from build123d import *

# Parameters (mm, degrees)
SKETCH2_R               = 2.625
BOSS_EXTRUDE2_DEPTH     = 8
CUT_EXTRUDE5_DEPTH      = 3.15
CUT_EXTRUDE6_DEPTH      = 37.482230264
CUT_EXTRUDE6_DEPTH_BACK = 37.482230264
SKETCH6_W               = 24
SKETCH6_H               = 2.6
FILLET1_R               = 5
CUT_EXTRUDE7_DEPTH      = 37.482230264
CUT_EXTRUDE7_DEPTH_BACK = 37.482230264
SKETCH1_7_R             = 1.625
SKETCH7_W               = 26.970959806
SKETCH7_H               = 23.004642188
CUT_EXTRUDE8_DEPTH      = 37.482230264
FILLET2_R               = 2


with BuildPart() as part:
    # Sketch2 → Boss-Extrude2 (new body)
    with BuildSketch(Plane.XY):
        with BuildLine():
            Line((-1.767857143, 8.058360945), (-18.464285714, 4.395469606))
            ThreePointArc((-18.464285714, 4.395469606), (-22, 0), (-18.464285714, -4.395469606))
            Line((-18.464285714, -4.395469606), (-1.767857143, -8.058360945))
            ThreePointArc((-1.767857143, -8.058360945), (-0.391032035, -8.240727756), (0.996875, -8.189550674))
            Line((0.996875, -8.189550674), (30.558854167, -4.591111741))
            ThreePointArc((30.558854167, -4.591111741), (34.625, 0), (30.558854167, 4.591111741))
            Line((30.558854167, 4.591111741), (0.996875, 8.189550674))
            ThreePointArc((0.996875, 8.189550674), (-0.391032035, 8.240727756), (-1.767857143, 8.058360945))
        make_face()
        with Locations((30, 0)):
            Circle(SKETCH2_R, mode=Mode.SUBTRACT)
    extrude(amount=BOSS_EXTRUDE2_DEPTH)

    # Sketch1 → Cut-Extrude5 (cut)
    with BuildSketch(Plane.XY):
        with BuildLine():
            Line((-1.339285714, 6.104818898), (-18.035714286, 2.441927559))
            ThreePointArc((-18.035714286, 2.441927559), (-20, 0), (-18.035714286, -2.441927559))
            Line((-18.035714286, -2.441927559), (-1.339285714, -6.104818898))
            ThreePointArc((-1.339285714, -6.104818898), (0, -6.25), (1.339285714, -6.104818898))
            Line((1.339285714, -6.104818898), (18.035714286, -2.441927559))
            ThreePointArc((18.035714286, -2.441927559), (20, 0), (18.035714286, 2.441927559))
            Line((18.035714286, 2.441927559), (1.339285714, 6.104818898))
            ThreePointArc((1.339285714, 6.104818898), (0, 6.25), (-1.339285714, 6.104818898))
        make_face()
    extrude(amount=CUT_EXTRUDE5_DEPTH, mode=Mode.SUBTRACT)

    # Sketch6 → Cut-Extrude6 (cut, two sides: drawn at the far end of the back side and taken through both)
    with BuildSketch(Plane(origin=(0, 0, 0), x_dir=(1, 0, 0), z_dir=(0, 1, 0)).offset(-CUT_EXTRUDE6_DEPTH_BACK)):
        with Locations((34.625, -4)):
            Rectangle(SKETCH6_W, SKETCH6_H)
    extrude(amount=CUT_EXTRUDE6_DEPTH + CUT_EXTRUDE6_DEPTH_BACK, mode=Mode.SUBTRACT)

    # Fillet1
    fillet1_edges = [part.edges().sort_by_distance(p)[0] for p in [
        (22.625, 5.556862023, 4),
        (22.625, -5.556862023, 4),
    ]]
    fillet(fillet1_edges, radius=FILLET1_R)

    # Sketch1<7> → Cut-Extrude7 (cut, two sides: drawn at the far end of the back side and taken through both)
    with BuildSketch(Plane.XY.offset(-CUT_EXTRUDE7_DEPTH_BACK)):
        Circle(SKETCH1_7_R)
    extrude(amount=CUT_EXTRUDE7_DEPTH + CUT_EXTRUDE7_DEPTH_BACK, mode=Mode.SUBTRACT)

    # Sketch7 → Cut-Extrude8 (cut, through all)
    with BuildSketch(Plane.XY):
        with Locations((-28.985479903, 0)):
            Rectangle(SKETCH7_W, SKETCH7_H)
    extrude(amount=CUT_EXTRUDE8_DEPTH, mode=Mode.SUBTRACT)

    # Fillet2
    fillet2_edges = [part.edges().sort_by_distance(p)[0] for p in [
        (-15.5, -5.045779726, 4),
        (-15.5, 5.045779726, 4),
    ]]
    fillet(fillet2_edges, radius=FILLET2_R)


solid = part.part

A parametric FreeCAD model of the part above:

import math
import FreeCAD as App
import Part
import Sketcher


def edges_at(feature, points):
    """Names of the edges that pass closest to the given points."""
    edges = feature.Shape.Edges
    near = lambda p: min(range(len(edges)), key=lambda i: edges[i].distToShape(Part.Vertex(*p))[0])
    return sorted({f"Edge{near(p) + 1}" for p in points})

doc = App.newDocument("Part")
params = doc.addObject("Spreadsheet::Sheet", "Params")
for row, (alias, value) in enumerate([
    ("sketch1_radius", "4.5 mm"),
    ("sketch1_diameter", "5.25 mm"),
    ("sketch1_radius2", "8.25 mm"),
    ("pad1_length", "8 mm"),
    ("sketch2_radius", "2.5 mm"),
    ("sketch2_radius2", "6.25 mm"),
    ("pocket1_length", "3.15 mm"),
    ("sketch3_width", "24 mm"),
    ("sketch3_height", "2.6 mm"),
    ("fillet_radius", "5 mm"),
    ("sketch4_diameter", "3.25 mm"),
    ("fillet2_radius", "2 mm"),
], start=1):
    params.set(f"A{row}", alias)
    params.set(f"B{row}", "=" + value)
    params.setAlias(f"B{row}", alias)

body = doc.addObject("PartDesign::Body", "Body")

# Sketch on XY plane
sketch1 = body.newObject("Sketcher::SketchObject", "Sketch")
sketch1.AttachmentSupport = (doc.getObject("XY_Plane"), [""])
sketch1.MapMode = "FlatFace"
sketch1.addGeometry(Part.LineSegment(App.Vector(-1.8, 8.1, 0), App.Vector(-18.5, 4.4, 0)), False)
sketch1.addGeometry(Part.ArcOfCircle(Part.Circle(App.Vector(-17.5, 0, 0), App.Vector(0, 0, 1), 4.5), math.radians(102), math.radians(258)), False)
sketch1.addGeometry(Part.LineSegment(App.Vector(-18.5, -4.4, 0), App.Vector(-1.8, -8.1, 0)), False)
sketch1.addGeometry(Part.ArcOfCircle(Part.Circle(App.Vector(0, 0, 0), App.Vector(0, 0, 1), 8.3), math.radians(-102.37), math.radians(-83.06)), False)
sketch1.addGeometry(Part.LineSegment(App.Vector(1, -8.2, 0), App.Vector(30.6, -4.6, 0)), False)
sketch1.addGeometry(Part.ArcOfCircle(Part.Circle(App.Vector(30, 0, 0), App.Vector(0, 0, 1), 4.6), math.radians(-83), math.radians(83)), False)
sketch1.addGeometry(Part.LineSegment(App.Vector(30.6, 4.6, 0), App.Vector(1, 8.2, 0)), False)
sketch1.addGeometry(Part.ArcOfCircle(Part.Circle(App.Vector(0, 0, 0), App.Vector(0, 0, 1), 8.3), math.radians(83.06), math.radians(102.37)), False)
sketch1.addGeometry(Part.Circle(App.Vector(30, 0, 0), App.Vector(0, 0, 1), 2.6), False)
sketch1.addConstraint(Sketcher.Constraint("Tangent", 0, 2, 1, 1))
sketch1.addConstraint(Sketcher.Constraint("Tangent", 1, 2, 2, 1))
sketch1.addConstraint(Sketcher.Constraint("Tangent", 2, 2, 3, 1))
sketch1.addConstraint(Sketcher.Constraint("Tangent", 3, 2, 4, 1))
sketch1.addConstraint(Sketcher.Constraint("Tangent", 4, 2, 5, 1))
sketch1.addConstraint(Sketcher.Constraint("Tangent", 5, 2, 6, 1))
sketch1.addConstraint(Sketcher.Constraint("Tangent", 6, 2, 7, 1))
sketch1.addConstraint(Sketcher.Constraint("Tangent", 7, 2, 0, 1))
sketch1.addConstraint(Sketcher.Constraint("Coincident", 3, 3, -1, 1))
sketch1.addConstraint(Sketcher.Constraint("Coincident", 7, 3, -1, 1))
sketch1.addConstraint(Sketcher.Constraint("Coincident", 8, 3, 5, 3))
sketch1.addConstraint(Sketcher.Constraint("Equal", 3, 7))
sketch1.addConstraint(Sketcher.Constraint("PointOnObject", 1, 3, -1))
sketch1.addConstraint(Sketcher.Constraint("PointOnObject", 5, 3, -1))
sketch1.addConstraint(Sketcher.Constraint("Radius", 1, 4.5))
sketch1.addConstraint(Sketcher.Constraint("Diameter", 8, 5.25))
sketch1.addConstraint(Sketcher.Constraint("Radius", 3, 8.25))
sketch1.addConstraint(Sketcher.Constraint("DistanceX", -1, 1, 5, 3, 30.0))
sketch1.addConstraint(Sketcher.Constraint("Radius", 5, 4.625))
sketch1.addConstraint(Sketcher.Constraint("DistanceX", 1, 3, -1, 1, 17.5))
sketch1.setExpression("Constraints[14]", "Params.sketch1_radius")
sketch1.setExpression("Constraints[15]", "Params.sketch1_diameter")
sketch1.setExpression("Constraints[16]", "Params.sketch1_radius2")
pad1 = body.newObject("PartDesign::Pad", "Pad")
pad1.Profile = sketch1
pad1.setExpression("Length", "Params.pad1_length")

# Sketch on XY plane
sketch2 = body.newObject("Sketcher::SketchObject", "Sketch001")
sketch2.AttachmentSupport = (doc.getObject("XY_Plane"), [""])
sketch2.MapMode = "FlatFace"
sketch2.addGeometry(Part.LineSegment(App.Vector(-1.3, 6.1, 0), App.Vector(-18, 2.4, 0)), False)
sketch2.addGeometry(Part.ArcOfCircle(Part.Circle(App.Vector(-17.5, 0, 0), App.Vector(0, 0, 1), 2.5), math.radians(102), math.radians(258)), False)
sketch2.addGeometry(Part.LineSegment(App.Vector(-18, -2.4, 0), App.Vector(-1.3, -6.1, 0)), False)
sketch2.addGeometry(Part.ArcOfCircle(Part.Circle(App.Vector(0, 0, 0), App.Vector(0, 0, 1), 6.3), math.radians(-102), math.radians(-78)), False)
sketch2.addGeometry(Part.LineSegment(App.Vector(1.3, -6.1, 0), App.Vector(18, -2.4, 0)), False)
sketch2.addGeometry(Part.ArcOfCircle(Part.Circle(App.Vector(17.5, 0, 0), App.Vector(0, 0, 1), 2.5), math.radians(-78), math.radians(78)), False)
sketch2.addGeometry(Part.LineSegment(App.Vector(18, 2.4, 0), App.Vector(1.3, 6.1, 0)), False)
sketch2.addGeometry(Part.ArcOfCircle(Part.Circle(App.Vector(0, 0, 0), App.Vector(0, 0, 1), 6.3), math.radians(78), math.radians(102)), False)
sketch2.addConstraint(Sketcher.Constraint("Tangent", 0, 2, 1, 1))
sketch2.addConstraint(Sketcher.Constraint("Tangent", 1, 2, 2, 1))
sketch2.addConstraint(Sketcher.Constraint("Tangent", 2, 2, 3, 1))
sketch2.addConstraint(Sketcher.Constraint("Tangent", 3, 2, 4, 1))
sketch2.addConstraint(Sketcher.Constraint("Tangent", 4, 2, 5, 1))
sketch2.addConstraint(Sketcher.Constraint("Tangent", 5, 2, 6, 1))
sketch2.addConstraint(Sketcher.Constraint("Tangent", 6, 2, 7, 1))
sketch2.addConstraint(Sketcher.Constraint("Tangent", 7, 2, 0, 1))
sketch2.addConstraint(Sketcher.Constraint("Coincident", 3, 3, -1, 1))
sketch2.addConstraint(Sketcher.Constraint("Coincident", 7, 3, -1, 1))
sketch2.addConstraint(Sketcher.Constraint("Equal", 1, 5))
sketch2.addConstraint(Sketcher.Constraint("Equal", 3, 7))
sketch2.addConstraint(Sketcher.Constraint("Symmetric", 1, 3, 5, 3, -1, 1))
sketch2.addConstraint(Sketcher.Constraint("PointOnObject", 1, 3, -1))
sketch2.addConstraint(Sketcher.Constraint("Radius", 1, 2.5))
sketch2.addConstraint(Sketcher.Constraint("Radius", 3, 6.25))
sketch2.addConstraint(Sketcher.Constraint("DistanceX", 1, 3, 5, 3, 35.0))
sketch2.setExpression("Constraints[14]", "Params.sketch2_radius")
sketch2.setExpression("Constraints[15]", "Params.sketch2_radius2")
pocket1 = body.newObject("PartDesign::Pocket", "Pocket")
pocket1.Profile = sketch2
pocket1.setExpression("Length", "Params.pocket1_length")
pocket1.Reversed = True

# Sketch on XZ plane
sketch3 = body.newObject("Sketcher::SketchObject", "Sketch002")
sketch3.AttachmentSupport = (doc.getObject("XZ_Plane"), [""])
sketch3.MapMode = "FlatFace"
sketch3.addGeometry(Part.LineSegment(App.Vector(22.6, 2.7, 0), App.Vector(22.6, 5.3, 0)), False)
sketch3.addGeometry(Part.LineSegment(App.Vector(22.6, 5.3, 0), App.Vector(46.6, 5.3, 0)), False)
sketch3.addGeometry(Part.LineSegment(App.Vector(46.6, 5.3, 0), App.Vector(46.6, 2.7, 0)), False)
sketch3.addGeometry(Part.LineSegment(App.Vector(46.6, 2.7, 0), App.Vector(22.6, 2.7, 0)), False)
sketch3.addConstraint(Sketcher.Constraint("Coincident", 0, 2, 1, 1))
sketch3.addConstraint(Sketcher.Constraint("Coincident", 1, 2, 2, 1))
sketch3.addConstraint(Sketcher.Constraint("Coincident", 2, 2, 3, 1))
sketch3.addConstraint(Sketcher.Constraint("Coincident", 3, 2, 0, 1))
sketch3.addConstraint(Sketcher.Constraint("Vertical", 0))
sketch3.addConstraint(Sketcher.Constraint("Horizontal", 1))
sketch3.addConstraint(Sketcher.Constraint("Vertical", 2))
sketch3.addConstraint(Sketcher.Constraint("Horizontal", 3))
sketch3.addConstraint(Sketcher.Constraint("DistanceX", 1, 1, 1, 2, 24.0))
sketch3.addConstraint(Sketcher.Constraint("DistanceY", 0, 1, 0, 2, 2.6))
sketch3.addConstraint(Sketcher.Constraint("DistanceY", -1, 1, 0, 2, 5.3))
sketch3.addConstraint(Sketcher.Constraint("DistanceX", -1, 1, 0, 2, 22.625))
sketch3.setExpression("Constraints[8]", "Params.sketch3_width")
sketch3.setExpression("Constraints[9]", "Params.sketch3_height")
pocket2 = body.newObject("PartDesign::Pocket", "Pocket001")
pocket2.Profile = sketch3
pocket2.Type = "ThroughAll"
pocket2.Midplane = True
doc.recompute()

fillet = body.newObject("PartDesign::Fillet", "Fillet")
fillet.Base = (pocket2, edges_at(pocket2, [(22.625, 5.557, 4), (22.625, -5.557, 4)]))
fillet.setExpression("Radius", "Params.fillet_radius")

# Sketch on XY plane
sketch4 = body.newObject("Sketcher::SketchObject", "Sketch003")
sketch4.AttachmentSupport = (doc.getObject("XY_Plane"), [""])
sketch4.MapMode = "FlatFace"
sketch4.addGeometry(Part.Circle(App.Vector(0, 0, 0), App.Vector(0, 0, 1), 1.6), False)
sketch4.addConstraint(Sketcher.Constraint("Coincident", 0, 3, -1, 1))
sketch4.addConstraint(Sketcher.Constraint("Diameter", 0, 3.25))
sketch4.setExpression("Constraints[1]", "Params.sketch4_diameter")
pocket3 = body.newObject("PartDesign::Pocket", "Pocket002")
pocket3.Profile = sketch4
pocket3.Type = "ThroughAll"
pocket3.Midplane = True

# Sketch on XY plane
sketch5 = body.newObject("Sketcher::SketchObject", "Sketch004")
sketch5.AttachmentSupport = (doc.getObject("XY_Plane"), [""])
sketch5.MapMode = "FlatFace"
sketch5.addGeometry(Part.LineSegment(App.Vector(-42, 12, 0), App.Vector(-42, -12, 0)), False)
sketch5.addGeometry(Part.LineSegment(App.Vector(-42, -12, 0), App.Vector(-16, -12, 0)), False)
sketch5.addGeometry(Part.LineSegment(App.Vector(-16, -12, 0), App.Vector(-16, 12, 0)), False)
sketch5.addGeometry(Part.LineSegment(App.Vector(-16, 12, 0), App.Vector(-42, 12, 0)), False)
sketch5.addConstraint(Sketcher.Constraint("Coincident", 0, 2, 1, 1))
sketch5.addConstraint(Sketcher.Constraint("Coincident", 1, 2, 2, 1))
sketch5.addConstraint(Sketcher.Constraint("Coincident", 2, 2, 3, 1))
sketch5.addConstraint(Sketcher.Constraint("Coincident", 3, 2, 0, 1))
sketch5.addConstraint(Sketcher.Constraint("Vertical", 0))
sketch5.addConstraint(Sketcher.Constraint("Horizontal", 1))
sketch5.addConstraint(Sketcher.Constraint("Vertical", 2))
sketch5.addConstraint(Sketcher.Constraint("Horizontal", 3))
sketch5.addConstraint(Sketcher.Constraint("DistanceX", 1, 2, -1, 1, 15.5))
sketch5.addConstraint(Sketcher.Constraint("DistanceX", 1, 1, 1, 2, 26.97096))
sketch5.addConstraint(Sketcher.Constraint("DistanceY", 0, 2, 0, 1, 23.004642))
sketch5.addConstraint(Sketcher.Constraint("DistanceY", 0, 2, -1, 1, 11.502321))
pocket4 = body.newObject("PartDesign::Pocket", "Pocket003")
pocket4.Profile = sketch5
pocket4.Type = "ThroughAll"
pocket4.Reversed = True
doc.recompute()

fillet2 = body.newObject("PartDesign::Fillet", "Fillet001")
fillet2.Base = (pocket4, edges_at(pocket4, [(-15.5, -5.046, 4), (-15.5, 5.046, 4)]))
fillet2.setExpression("Radius", "Params.fillet2_radius")

doc.recompute()
